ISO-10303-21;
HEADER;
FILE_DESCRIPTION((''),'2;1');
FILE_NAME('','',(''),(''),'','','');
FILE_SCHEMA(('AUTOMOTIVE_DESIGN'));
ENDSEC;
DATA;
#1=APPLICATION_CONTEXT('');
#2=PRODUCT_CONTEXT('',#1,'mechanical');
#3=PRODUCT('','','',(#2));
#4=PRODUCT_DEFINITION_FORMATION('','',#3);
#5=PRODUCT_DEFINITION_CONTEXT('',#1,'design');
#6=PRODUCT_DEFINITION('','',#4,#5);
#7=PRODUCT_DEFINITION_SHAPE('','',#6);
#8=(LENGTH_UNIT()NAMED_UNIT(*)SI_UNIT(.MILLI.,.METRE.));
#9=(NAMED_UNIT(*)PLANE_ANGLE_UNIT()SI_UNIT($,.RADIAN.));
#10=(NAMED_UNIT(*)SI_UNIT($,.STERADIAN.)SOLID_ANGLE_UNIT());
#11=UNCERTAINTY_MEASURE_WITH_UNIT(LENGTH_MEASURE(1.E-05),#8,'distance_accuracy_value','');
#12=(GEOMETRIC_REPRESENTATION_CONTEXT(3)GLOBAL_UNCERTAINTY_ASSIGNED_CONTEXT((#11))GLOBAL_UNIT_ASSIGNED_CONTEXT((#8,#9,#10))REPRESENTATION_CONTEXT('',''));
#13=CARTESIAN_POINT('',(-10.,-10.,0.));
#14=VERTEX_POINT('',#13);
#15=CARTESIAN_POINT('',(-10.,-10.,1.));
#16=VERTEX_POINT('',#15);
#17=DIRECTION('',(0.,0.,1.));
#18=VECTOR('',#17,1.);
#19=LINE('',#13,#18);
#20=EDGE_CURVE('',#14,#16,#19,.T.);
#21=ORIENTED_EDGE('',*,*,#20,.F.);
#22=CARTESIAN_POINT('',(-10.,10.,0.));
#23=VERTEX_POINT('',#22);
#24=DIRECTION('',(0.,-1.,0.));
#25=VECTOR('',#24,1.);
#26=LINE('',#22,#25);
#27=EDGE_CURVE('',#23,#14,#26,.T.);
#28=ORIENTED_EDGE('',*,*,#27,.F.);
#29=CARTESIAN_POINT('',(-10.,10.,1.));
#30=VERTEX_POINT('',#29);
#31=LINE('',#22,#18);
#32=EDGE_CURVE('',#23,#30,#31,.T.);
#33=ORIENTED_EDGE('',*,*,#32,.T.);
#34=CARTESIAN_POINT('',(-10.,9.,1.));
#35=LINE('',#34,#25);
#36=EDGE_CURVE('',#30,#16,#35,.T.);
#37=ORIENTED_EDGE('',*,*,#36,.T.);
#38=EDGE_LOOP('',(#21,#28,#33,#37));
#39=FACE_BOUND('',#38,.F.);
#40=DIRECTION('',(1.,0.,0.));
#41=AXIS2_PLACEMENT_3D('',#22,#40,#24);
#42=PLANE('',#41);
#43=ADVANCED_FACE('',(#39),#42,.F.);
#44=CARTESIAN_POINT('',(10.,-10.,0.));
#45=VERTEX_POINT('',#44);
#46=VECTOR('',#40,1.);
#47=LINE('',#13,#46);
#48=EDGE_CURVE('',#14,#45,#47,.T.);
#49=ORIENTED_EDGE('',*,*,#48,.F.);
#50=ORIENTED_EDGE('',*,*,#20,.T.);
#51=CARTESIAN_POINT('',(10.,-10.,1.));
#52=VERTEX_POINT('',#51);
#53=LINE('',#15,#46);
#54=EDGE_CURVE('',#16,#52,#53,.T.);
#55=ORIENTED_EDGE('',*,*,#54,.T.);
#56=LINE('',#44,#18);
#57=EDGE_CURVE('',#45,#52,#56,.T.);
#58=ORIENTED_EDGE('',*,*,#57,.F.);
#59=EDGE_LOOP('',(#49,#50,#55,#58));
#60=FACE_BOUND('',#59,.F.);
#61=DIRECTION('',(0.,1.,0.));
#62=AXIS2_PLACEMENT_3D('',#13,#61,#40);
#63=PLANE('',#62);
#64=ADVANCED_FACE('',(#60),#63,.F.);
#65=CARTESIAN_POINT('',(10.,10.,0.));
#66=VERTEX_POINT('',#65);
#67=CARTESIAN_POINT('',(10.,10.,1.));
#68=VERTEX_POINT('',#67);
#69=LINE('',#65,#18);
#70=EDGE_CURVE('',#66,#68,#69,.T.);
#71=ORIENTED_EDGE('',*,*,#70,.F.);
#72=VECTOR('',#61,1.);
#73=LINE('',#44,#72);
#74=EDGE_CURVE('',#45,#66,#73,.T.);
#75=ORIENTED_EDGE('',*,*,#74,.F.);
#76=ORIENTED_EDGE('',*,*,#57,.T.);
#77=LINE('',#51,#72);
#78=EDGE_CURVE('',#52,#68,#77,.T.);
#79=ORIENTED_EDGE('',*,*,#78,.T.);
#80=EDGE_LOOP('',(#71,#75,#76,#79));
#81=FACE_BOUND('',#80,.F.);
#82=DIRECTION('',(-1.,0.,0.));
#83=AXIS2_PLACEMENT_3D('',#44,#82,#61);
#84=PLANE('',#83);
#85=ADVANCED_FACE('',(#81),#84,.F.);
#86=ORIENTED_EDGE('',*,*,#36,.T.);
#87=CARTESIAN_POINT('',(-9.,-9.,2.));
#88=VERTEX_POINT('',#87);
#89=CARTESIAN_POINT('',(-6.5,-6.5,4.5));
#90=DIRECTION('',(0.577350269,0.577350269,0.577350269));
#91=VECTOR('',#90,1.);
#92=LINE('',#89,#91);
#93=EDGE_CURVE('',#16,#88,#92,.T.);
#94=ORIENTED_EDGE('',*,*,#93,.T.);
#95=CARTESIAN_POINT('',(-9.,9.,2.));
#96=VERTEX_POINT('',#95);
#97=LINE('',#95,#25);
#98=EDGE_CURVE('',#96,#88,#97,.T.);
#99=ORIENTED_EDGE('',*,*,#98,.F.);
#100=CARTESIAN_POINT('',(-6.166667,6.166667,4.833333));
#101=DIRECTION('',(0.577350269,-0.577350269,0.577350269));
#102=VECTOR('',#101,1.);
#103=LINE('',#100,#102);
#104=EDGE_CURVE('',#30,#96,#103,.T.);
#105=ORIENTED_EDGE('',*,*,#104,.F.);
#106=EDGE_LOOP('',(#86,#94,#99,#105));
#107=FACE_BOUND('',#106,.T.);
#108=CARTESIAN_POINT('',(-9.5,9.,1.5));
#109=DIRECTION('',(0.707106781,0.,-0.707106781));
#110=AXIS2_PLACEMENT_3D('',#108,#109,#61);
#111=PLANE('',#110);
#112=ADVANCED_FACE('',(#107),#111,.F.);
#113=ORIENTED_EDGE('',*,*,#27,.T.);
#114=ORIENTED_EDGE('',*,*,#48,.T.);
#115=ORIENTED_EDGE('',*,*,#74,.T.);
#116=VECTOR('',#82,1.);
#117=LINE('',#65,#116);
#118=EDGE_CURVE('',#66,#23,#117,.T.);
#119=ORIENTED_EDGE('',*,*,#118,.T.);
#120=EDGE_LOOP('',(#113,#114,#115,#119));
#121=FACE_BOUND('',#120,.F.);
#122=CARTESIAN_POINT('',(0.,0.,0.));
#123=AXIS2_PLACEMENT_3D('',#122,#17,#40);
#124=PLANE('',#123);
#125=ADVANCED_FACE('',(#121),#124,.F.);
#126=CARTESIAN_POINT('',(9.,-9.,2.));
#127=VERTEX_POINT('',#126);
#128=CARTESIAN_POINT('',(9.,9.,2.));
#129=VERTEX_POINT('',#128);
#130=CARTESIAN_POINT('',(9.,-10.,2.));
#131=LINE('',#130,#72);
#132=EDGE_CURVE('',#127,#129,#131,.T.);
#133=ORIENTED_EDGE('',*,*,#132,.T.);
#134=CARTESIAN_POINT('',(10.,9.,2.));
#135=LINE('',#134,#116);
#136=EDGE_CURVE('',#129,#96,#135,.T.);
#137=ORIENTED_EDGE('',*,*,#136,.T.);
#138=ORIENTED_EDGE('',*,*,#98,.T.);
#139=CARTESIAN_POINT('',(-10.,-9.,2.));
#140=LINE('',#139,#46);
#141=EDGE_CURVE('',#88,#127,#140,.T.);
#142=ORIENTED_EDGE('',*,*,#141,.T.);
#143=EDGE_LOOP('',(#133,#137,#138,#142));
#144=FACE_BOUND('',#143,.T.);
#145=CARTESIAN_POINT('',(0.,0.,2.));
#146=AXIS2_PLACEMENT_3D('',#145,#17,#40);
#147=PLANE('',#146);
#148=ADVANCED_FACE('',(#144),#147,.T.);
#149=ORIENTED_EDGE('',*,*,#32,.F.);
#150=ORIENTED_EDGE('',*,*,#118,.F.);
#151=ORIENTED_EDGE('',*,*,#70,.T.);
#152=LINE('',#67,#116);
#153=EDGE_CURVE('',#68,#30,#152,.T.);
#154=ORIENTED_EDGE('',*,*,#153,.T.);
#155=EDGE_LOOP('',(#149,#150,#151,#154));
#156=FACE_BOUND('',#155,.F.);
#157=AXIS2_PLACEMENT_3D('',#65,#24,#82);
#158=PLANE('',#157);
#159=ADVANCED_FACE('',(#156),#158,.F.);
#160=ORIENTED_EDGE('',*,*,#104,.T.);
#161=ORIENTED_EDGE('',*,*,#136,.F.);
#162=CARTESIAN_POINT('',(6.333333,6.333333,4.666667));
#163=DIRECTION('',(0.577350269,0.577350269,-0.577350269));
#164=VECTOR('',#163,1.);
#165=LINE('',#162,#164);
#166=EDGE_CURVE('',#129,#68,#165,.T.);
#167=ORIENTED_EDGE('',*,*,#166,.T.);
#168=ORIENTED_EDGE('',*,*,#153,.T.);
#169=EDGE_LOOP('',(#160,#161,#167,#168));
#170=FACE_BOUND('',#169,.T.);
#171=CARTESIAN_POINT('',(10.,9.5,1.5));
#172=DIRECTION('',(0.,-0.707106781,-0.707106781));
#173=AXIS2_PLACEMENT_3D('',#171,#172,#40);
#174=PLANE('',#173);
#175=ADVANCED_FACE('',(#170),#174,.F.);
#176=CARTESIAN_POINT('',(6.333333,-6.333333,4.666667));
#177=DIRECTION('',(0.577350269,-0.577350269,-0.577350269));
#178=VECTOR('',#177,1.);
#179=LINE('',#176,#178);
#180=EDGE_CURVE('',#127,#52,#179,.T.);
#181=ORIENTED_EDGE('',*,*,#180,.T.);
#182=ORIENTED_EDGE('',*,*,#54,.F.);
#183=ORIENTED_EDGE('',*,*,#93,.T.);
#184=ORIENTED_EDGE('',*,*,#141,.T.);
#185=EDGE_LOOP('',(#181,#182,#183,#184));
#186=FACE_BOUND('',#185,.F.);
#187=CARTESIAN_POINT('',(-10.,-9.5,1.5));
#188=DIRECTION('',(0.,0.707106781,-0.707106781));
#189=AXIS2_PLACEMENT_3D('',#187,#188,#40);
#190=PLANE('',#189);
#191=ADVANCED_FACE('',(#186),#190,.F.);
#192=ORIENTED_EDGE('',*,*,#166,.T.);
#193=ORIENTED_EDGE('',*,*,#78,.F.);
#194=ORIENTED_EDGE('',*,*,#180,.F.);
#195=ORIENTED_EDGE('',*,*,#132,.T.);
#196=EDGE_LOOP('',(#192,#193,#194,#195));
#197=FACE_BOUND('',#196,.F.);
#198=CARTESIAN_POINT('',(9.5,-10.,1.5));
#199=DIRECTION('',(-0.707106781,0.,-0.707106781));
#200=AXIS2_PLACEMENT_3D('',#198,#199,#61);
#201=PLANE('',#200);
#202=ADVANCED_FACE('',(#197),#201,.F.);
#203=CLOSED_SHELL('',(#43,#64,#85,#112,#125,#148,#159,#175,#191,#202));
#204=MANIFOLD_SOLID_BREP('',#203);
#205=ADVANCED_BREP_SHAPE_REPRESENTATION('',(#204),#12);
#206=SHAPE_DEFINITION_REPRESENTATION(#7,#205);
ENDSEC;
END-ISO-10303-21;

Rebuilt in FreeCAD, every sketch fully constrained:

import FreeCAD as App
import Part
import Sketcher
from FreeCAD import Vector
Q = App.Units.Quantity


def edges_at(feature, points):
    """Names of the edges that pass closest to the given points."""
    edges = feature.Shape.Edges
    near = lambda p: min(range(len(edges)), key=lambda i: edges[i].distToShape(Part.Vertex(*p))[0])
    return sorted({f"Edge{near(p) + 1}" for p in points})

doc = App.newDocument("Part")
body = doc.addObject("PartDesign::Body", "Body")

sketch1 = body.newObject("Sketcher::SketchObject", "Sketch")
sketch1.AttachmentSupport = (doc.getObject("XY_Plane"), [""])
sketch1.MapMode = "FlatFace"
sketch1.addGeometry([
    Part.LineSegment(Vector(-10, 10, 0), Vector(-10, -10, 0)),
    Part.LineSegment(Vector(-10, -10, 0), Vector(10, -10, 0)),
    Part.LineSegment(Vector(10, -10, 0), Vector(10, 10, 0)),
    Part.LineSegment(Vector(10, 10, 0), Vector(-10, 10, 0)),
], False)
sketch1.addConstraint([
    Sketcher.Constraint("Coincident", 0, 2, 1, 1),
    Sketcher.Constraint("Coincident", 1, 2, 2, 1),
    Sketcher.Constraint("Coincident", 2, 2, 3, 1),
    Sketcher.Constraint("Coincident", 3, 2, 0, 1),
    Sketcher.Constraint("Vertical", 0),
    Sketcher.Constraint("Horizontal", 1),
    Sketcher.Constraint("Vertical", 2),
    Sketcher.Constraint("Horizontal", 3),
    Sketcher.Constraint("Symmetric", 0, 2, 2, 2, -1, 1),
    Sketcher.Constraint("Equal", 3, 0),
    Sketcher.Constraint("DistanceX", 1, 1, 1, 2, Q("20 mm")),
])
pad1 = body.newObject("PartDesign::Pad", "Pad")
pad1.Profile = sketch1
pad1.Length = 2
doc.recompute()

chamfer = body.newObject("PartDesign::Chamfer", "Chamfer")
chamfer.Base = (pad1, edges_at(pad1, [(0, 10, 2)]))
chamfer.Size = 1
doc.recompute()

chamfer2 = body.newObject("PartDesign::Chamfer", "Chamfer001")
chamfer2.Base = (chamfer, edges_at(chamfer, [(10, -0.5, 2), (-10, -0.5, 2), (0, -10, 2)]))
chamfer2.Size = 1

doc.recompute()
